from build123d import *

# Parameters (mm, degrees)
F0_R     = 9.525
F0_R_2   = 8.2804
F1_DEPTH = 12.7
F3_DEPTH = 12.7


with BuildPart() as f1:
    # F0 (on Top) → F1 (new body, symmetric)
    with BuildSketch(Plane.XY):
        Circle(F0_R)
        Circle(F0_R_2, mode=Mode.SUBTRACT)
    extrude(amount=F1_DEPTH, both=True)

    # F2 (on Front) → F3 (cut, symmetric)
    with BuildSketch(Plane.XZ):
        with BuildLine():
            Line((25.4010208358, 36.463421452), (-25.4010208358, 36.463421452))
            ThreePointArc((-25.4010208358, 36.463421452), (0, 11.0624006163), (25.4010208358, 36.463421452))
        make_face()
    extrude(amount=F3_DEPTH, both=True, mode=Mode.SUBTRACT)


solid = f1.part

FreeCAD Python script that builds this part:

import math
import FreeCAD as App
import Part
import Sketcher
from FreeCAD import Vector
Q = App.Units.Quantity

doc = App.newDocument("Part")
params = doc.addObject("Spreadsheet::Sheet", "Params")
for row, (alias, value) in enumerate([
    ("sketch1_diameter", "0.75 in"),
    ("sketch1_diameter2", "0.652 in"),
    ("pad1_length", "1 in"),
    ("pocket1_length", "1 in"),
], start=1):
    params.set(f"A{row}", alias)
    params.set(f"B{row}", "=" + value)
    params.setAlias(f"B{row}", alias)

body = doc.addObject("PartDesign::Body", "Body")

# Sketch on XY plane
sketch1 = doc.addObject("Sketcher::SketchObject", "Sketch")
body.addObject(sketch1)
sketch1.AttachmentSupport = (doc.XY_Plane, [""])
sketch1.MapMode = "FlatFace"
sketch1.addGeometry([
    Part.Circle(Vector(0, 0, 0), Vector(0, 0, 1), 10),
    Part.Circle(Vector(0, 0, 0), Vector(0, 0, 1), 8),
], False)
sketch1.addConstraint([
    Sketcher.Constraint("Coincident", 0, 3, -1, 1),
    Sketcher.Constraint("Coincident", 1, 3, -1, 1),
    Sketcher.Constraint("Diameter", 0, Q("0.75 in")),
    Sketcher.Constraint("Diameter", 1, Q("0.652 in")),
])
sketch1.setExpression("Constraints[2]", "Params.sketch1_diameter")
sketch1.setExpression("Constraints[3]", "Params.sketch1_diameter2")
pad1 = doc.addObject("PartDesign::Pad", "Pad")
body.addObject(pad1)
pad1.Profile = sketch1
pad1.setExpression("Length", "Params.pad1_length")
pad1.Midplane = True

# Sketch on XZ plane
sketch2 = doc.addObject("Sketcher::SketchObject", "Sketch001")
body.addObject(sketch2)
sketch2.AttachmentSupport = (doc.XZ_Plane, [""])
sketch2.MapMode = "FlatFace"
sketch2.addGeometry([
    Part.LineSegment(Vector(25, 36, 0), Vector(-25, 36, 0)),
    Part.ArcOfCircle(Part.Circle(Vector(0, 36, 0), Vector(0, 0, 1), 25), math.radians(180), math.radians(360)),
], False)
sketch2.addConstraint([
    Sketcher.Constraint("Coincident", 0, 1, 1, 2),
    Sketcher.Constraint("Coincident", 1, 1, 0, 2),
    Sketcher.Constraint("Horizontal", 0),
    Sketcher.Constraint("PointOnObject", 1, 3, -2),
    Sketcher.Constraint("Horizontal", 1, 3, 0, 1),
    Sketcher.Constraint("Radius", 1, Q("25.401021 mm")),
    Sketcher.Constraint("DistanceY", -1, 1, 1, 3, Q("36.463421 mm")),
])
pocket1 = doc.addObject("PartDesign::Pocket", "Pocket")
body.addObject(pocket1)
pocket1.Profile = sketch2
pocket1.setExpression("Length", "Params.pocket1_length")
pocket1.Midplane = True

doc.recompute()
